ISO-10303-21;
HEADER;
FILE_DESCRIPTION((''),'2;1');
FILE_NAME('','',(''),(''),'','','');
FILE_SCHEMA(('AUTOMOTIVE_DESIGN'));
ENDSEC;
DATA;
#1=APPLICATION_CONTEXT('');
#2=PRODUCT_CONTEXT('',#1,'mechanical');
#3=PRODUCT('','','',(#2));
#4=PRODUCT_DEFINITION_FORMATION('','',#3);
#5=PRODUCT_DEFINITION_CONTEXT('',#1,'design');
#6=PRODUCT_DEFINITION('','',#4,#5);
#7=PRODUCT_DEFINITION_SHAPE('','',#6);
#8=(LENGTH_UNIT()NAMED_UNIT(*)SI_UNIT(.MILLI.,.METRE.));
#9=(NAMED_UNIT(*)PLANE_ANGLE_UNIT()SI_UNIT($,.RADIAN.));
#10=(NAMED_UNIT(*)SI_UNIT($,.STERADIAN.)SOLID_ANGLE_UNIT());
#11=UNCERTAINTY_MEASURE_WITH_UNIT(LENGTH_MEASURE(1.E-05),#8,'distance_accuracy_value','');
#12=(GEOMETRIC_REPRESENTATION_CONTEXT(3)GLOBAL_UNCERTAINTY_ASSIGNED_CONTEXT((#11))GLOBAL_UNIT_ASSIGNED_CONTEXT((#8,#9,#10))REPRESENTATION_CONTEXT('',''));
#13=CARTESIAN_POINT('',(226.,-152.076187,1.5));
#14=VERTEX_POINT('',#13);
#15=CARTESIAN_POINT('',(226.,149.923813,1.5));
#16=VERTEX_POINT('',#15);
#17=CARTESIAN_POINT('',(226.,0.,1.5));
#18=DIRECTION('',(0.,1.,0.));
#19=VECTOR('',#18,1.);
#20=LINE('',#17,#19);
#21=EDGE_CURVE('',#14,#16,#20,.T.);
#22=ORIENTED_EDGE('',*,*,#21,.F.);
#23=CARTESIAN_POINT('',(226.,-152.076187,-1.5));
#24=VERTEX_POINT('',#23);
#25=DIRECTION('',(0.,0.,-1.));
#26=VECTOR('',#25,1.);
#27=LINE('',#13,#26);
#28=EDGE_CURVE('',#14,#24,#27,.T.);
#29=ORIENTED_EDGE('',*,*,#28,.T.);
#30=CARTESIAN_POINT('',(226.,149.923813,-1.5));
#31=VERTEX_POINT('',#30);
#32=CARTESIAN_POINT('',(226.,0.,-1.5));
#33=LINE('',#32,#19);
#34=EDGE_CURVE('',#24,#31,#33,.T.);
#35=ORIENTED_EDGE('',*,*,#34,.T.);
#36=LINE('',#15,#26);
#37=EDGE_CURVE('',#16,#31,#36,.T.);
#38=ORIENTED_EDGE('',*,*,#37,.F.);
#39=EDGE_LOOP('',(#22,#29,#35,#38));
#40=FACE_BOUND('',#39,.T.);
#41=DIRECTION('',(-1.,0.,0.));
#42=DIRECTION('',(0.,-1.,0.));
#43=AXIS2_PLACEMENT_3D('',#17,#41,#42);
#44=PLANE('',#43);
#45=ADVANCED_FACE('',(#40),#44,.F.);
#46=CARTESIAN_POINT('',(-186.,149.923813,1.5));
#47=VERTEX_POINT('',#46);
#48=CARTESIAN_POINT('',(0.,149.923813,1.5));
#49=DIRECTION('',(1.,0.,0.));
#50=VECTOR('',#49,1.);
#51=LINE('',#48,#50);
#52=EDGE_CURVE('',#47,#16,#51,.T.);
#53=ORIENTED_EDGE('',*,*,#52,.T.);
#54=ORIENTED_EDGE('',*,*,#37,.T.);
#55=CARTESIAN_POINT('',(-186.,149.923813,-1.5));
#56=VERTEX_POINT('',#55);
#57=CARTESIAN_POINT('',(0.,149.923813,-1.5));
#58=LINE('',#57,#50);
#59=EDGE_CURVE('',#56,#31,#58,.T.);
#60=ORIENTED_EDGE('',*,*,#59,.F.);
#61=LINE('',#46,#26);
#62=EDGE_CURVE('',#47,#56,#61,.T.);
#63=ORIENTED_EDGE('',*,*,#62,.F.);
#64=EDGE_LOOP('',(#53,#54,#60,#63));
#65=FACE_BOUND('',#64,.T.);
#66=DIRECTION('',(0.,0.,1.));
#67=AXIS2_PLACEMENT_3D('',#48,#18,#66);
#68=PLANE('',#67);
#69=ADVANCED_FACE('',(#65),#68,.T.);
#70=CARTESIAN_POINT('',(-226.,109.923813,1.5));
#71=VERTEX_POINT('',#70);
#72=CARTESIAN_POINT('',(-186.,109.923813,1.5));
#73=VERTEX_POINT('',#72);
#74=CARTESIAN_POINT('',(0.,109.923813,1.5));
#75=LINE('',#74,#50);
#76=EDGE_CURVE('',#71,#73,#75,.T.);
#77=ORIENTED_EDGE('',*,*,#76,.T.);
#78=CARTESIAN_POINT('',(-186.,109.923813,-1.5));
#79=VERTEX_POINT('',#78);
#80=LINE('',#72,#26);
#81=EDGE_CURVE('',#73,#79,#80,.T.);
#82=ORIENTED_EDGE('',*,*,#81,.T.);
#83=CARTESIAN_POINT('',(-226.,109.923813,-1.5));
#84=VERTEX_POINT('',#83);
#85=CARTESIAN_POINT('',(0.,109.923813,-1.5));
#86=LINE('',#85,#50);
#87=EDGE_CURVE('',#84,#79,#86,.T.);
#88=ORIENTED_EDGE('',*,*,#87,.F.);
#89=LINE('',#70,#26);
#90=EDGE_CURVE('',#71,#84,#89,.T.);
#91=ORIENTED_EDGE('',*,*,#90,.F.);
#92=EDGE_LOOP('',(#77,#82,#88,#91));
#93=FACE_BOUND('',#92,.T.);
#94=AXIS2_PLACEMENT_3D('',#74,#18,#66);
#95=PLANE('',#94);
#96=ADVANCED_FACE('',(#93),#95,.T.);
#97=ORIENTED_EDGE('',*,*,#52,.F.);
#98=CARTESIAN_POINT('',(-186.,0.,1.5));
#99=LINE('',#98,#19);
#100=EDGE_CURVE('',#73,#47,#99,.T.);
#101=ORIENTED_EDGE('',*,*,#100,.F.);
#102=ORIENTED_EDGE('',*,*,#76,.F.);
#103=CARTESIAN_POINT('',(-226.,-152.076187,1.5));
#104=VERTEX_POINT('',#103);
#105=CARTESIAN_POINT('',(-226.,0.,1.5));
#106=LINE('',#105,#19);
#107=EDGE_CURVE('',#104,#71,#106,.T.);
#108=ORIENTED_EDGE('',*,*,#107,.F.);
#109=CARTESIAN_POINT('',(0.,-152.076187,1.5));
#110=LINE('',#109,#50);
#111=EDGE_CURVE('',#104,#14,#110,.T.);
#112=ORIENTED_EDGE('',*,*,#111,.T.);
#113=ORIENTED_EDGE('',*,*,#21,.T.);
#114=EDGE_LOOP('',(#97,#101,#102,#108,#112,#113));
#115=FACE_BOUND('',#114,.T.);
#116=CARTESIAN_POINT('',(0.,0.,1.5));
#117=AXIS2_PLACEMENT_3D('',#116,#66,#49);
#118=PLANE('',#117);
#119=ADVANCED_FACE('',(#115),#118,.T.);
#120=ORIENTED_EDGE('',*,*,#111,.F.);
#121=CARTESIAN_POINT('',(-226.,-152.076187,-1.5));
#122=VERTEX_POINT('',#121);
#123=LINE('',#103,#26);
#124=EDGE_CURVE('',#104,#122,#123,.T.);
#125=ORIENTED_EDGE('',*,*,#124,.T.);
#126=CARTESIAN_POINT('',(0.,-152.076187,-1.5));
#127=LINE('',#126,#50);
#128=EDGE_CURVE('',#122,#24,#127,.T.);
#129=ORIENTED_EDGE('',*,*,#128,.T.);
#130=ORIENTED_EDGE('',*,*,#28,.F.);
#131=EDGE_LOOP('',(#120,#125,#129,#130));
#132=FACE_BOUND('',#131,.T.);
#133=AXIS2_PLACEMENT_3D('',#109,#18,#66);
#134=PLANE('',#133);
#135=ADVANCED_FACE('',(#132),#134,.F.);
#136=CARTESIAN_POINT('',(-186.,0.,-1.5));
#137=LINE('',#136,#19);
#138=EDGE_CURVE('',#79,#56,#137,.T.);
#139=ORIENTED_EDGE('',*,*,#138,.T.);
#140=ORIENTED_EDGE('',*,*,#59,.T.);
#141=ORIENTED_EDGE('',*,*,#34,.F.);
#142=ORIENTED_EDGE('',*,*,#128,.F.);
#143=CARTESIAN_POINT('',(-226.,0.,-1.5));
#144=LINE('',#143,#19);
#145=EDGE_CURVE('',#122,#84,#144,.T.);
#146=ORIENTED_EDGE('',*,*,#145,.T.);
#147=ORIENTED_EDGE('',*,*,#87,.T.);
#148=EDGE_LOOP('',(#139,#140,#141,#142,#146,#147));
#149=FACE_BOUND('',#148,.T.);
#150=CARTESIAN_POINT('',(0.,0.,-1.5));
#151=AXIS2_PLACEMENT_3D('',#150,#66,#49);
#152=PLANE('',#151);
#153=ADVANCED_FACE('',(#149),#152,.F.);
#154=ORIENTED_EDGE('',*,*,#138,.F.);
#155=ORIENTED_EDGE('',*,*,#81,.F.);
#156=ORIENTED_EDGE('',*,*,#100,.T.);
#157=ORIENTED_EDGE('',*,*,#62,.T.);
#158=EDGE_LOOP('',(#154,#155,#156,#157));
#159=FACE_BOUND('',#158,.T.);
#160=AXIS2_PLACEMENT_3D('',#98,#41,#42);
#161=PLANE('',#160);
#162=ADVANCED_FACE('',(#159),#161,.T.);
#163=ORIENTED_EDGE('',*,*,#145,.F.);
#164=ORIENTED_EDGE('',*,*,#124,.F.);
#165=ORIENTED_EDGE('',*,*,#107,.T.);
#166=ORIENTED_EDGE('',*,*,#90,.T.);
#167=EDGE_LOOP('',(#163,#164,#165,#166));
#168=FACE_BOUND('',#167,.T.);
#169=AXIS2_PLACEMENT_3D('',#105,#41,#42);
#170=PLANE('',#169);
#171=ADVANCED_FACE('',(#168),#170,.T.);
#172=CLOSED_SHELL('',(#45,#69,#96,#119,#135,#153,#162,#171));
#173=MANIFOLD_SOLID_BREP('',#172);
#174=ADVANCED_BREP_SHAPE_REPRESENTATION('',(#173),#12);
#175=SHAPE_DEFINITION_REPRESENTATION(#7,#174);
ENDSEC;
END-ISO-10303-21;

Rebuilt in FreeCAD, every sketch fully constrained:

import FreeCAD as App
import Part
import Sketcher

doc = App.newDocument("Part")
body = doc.addObject("PartDesign::Body", "Body")

sketch1 = body.newObject("Sketcher::SketchObject", "Sketch")
sketch1.AttachmentSupport = (doc.getObject("XY_Plane"), [""])
sketch1.MapMode = "FlatFace"
sketch1.addGeometry([
    Part.LineSegment(App.Vector(-226, 110, 0), App.Vector(-226, -152, 0)),
    Part.LineSegment(App.Vector(-226, -152, 0), App.Vector(226, -152, 0)),
    Part.LineSegment(App.Vector(226, -152, 0), App.Vector(226, 150, 0)),
    Part.LineSegment(App.Vector(226, 150, 0), App.Vector(-186, 150, 0)),
    Part.LineSegment(App.Vector(-186, 150, 0), App.Vector(-186, 110, 0)),
    Part.LineSegment(App.Vector(-186, 110, 0), App.Vector(-226, 110, 0)),
], False)
sketch1.addConstraint([
    Sketcher.Constraint("Coincident", 0, 2, 1, 1),
    Sketcher.Constraint("Coincident", 1, 2, 2, 1),
    Sketcher.Constraint("Coincident", 2, 2, 3, 1),
    Sketcher.Constraint("Coincident", 3, 2, 4, 1),
    Sketcher.Constraint("Coincident", 4, 2, 5, 1),
    Sketcher.Constraint("Coincident", 5, 2, 0, 1),
    Sketcher.Constraint("Vertical", 0),
    Sketcher.Constraint("Horizontal", 1),
    Sketcher.Constraint("Vertical", 2),
    Sketcher.Constraint("Horizontal", 3),
    Sketcher.Constraint("Vertical", 4),
    Sketcher.Constraint("Horizontal", 5),
    Sketcher.Constraint("Equal", 5, 4),
    Sketcher.Constraint("DistanceX", 1, 1, 1, 2, 452.0),
    Sketcher.Constraint("DistanceX", 3, 2, 3, 1, 412.0),
    Sketcher.Constraint("DistanceY", 0, 2, 0, 1, 262.0),
    Sketcher.Constraint("DistanceX", 0, 2, -1, 1, 226.0),
    Sketcher.Constraint("DistanceY", 0, 2, -1, 1, 152.076187),
])
pad1 = body.newObject("PartDesign::Pad", "Pad")
pad1.Profile = sketch1
pad1.Length = 3
pad1.Midplane = True

doc.recompute()
